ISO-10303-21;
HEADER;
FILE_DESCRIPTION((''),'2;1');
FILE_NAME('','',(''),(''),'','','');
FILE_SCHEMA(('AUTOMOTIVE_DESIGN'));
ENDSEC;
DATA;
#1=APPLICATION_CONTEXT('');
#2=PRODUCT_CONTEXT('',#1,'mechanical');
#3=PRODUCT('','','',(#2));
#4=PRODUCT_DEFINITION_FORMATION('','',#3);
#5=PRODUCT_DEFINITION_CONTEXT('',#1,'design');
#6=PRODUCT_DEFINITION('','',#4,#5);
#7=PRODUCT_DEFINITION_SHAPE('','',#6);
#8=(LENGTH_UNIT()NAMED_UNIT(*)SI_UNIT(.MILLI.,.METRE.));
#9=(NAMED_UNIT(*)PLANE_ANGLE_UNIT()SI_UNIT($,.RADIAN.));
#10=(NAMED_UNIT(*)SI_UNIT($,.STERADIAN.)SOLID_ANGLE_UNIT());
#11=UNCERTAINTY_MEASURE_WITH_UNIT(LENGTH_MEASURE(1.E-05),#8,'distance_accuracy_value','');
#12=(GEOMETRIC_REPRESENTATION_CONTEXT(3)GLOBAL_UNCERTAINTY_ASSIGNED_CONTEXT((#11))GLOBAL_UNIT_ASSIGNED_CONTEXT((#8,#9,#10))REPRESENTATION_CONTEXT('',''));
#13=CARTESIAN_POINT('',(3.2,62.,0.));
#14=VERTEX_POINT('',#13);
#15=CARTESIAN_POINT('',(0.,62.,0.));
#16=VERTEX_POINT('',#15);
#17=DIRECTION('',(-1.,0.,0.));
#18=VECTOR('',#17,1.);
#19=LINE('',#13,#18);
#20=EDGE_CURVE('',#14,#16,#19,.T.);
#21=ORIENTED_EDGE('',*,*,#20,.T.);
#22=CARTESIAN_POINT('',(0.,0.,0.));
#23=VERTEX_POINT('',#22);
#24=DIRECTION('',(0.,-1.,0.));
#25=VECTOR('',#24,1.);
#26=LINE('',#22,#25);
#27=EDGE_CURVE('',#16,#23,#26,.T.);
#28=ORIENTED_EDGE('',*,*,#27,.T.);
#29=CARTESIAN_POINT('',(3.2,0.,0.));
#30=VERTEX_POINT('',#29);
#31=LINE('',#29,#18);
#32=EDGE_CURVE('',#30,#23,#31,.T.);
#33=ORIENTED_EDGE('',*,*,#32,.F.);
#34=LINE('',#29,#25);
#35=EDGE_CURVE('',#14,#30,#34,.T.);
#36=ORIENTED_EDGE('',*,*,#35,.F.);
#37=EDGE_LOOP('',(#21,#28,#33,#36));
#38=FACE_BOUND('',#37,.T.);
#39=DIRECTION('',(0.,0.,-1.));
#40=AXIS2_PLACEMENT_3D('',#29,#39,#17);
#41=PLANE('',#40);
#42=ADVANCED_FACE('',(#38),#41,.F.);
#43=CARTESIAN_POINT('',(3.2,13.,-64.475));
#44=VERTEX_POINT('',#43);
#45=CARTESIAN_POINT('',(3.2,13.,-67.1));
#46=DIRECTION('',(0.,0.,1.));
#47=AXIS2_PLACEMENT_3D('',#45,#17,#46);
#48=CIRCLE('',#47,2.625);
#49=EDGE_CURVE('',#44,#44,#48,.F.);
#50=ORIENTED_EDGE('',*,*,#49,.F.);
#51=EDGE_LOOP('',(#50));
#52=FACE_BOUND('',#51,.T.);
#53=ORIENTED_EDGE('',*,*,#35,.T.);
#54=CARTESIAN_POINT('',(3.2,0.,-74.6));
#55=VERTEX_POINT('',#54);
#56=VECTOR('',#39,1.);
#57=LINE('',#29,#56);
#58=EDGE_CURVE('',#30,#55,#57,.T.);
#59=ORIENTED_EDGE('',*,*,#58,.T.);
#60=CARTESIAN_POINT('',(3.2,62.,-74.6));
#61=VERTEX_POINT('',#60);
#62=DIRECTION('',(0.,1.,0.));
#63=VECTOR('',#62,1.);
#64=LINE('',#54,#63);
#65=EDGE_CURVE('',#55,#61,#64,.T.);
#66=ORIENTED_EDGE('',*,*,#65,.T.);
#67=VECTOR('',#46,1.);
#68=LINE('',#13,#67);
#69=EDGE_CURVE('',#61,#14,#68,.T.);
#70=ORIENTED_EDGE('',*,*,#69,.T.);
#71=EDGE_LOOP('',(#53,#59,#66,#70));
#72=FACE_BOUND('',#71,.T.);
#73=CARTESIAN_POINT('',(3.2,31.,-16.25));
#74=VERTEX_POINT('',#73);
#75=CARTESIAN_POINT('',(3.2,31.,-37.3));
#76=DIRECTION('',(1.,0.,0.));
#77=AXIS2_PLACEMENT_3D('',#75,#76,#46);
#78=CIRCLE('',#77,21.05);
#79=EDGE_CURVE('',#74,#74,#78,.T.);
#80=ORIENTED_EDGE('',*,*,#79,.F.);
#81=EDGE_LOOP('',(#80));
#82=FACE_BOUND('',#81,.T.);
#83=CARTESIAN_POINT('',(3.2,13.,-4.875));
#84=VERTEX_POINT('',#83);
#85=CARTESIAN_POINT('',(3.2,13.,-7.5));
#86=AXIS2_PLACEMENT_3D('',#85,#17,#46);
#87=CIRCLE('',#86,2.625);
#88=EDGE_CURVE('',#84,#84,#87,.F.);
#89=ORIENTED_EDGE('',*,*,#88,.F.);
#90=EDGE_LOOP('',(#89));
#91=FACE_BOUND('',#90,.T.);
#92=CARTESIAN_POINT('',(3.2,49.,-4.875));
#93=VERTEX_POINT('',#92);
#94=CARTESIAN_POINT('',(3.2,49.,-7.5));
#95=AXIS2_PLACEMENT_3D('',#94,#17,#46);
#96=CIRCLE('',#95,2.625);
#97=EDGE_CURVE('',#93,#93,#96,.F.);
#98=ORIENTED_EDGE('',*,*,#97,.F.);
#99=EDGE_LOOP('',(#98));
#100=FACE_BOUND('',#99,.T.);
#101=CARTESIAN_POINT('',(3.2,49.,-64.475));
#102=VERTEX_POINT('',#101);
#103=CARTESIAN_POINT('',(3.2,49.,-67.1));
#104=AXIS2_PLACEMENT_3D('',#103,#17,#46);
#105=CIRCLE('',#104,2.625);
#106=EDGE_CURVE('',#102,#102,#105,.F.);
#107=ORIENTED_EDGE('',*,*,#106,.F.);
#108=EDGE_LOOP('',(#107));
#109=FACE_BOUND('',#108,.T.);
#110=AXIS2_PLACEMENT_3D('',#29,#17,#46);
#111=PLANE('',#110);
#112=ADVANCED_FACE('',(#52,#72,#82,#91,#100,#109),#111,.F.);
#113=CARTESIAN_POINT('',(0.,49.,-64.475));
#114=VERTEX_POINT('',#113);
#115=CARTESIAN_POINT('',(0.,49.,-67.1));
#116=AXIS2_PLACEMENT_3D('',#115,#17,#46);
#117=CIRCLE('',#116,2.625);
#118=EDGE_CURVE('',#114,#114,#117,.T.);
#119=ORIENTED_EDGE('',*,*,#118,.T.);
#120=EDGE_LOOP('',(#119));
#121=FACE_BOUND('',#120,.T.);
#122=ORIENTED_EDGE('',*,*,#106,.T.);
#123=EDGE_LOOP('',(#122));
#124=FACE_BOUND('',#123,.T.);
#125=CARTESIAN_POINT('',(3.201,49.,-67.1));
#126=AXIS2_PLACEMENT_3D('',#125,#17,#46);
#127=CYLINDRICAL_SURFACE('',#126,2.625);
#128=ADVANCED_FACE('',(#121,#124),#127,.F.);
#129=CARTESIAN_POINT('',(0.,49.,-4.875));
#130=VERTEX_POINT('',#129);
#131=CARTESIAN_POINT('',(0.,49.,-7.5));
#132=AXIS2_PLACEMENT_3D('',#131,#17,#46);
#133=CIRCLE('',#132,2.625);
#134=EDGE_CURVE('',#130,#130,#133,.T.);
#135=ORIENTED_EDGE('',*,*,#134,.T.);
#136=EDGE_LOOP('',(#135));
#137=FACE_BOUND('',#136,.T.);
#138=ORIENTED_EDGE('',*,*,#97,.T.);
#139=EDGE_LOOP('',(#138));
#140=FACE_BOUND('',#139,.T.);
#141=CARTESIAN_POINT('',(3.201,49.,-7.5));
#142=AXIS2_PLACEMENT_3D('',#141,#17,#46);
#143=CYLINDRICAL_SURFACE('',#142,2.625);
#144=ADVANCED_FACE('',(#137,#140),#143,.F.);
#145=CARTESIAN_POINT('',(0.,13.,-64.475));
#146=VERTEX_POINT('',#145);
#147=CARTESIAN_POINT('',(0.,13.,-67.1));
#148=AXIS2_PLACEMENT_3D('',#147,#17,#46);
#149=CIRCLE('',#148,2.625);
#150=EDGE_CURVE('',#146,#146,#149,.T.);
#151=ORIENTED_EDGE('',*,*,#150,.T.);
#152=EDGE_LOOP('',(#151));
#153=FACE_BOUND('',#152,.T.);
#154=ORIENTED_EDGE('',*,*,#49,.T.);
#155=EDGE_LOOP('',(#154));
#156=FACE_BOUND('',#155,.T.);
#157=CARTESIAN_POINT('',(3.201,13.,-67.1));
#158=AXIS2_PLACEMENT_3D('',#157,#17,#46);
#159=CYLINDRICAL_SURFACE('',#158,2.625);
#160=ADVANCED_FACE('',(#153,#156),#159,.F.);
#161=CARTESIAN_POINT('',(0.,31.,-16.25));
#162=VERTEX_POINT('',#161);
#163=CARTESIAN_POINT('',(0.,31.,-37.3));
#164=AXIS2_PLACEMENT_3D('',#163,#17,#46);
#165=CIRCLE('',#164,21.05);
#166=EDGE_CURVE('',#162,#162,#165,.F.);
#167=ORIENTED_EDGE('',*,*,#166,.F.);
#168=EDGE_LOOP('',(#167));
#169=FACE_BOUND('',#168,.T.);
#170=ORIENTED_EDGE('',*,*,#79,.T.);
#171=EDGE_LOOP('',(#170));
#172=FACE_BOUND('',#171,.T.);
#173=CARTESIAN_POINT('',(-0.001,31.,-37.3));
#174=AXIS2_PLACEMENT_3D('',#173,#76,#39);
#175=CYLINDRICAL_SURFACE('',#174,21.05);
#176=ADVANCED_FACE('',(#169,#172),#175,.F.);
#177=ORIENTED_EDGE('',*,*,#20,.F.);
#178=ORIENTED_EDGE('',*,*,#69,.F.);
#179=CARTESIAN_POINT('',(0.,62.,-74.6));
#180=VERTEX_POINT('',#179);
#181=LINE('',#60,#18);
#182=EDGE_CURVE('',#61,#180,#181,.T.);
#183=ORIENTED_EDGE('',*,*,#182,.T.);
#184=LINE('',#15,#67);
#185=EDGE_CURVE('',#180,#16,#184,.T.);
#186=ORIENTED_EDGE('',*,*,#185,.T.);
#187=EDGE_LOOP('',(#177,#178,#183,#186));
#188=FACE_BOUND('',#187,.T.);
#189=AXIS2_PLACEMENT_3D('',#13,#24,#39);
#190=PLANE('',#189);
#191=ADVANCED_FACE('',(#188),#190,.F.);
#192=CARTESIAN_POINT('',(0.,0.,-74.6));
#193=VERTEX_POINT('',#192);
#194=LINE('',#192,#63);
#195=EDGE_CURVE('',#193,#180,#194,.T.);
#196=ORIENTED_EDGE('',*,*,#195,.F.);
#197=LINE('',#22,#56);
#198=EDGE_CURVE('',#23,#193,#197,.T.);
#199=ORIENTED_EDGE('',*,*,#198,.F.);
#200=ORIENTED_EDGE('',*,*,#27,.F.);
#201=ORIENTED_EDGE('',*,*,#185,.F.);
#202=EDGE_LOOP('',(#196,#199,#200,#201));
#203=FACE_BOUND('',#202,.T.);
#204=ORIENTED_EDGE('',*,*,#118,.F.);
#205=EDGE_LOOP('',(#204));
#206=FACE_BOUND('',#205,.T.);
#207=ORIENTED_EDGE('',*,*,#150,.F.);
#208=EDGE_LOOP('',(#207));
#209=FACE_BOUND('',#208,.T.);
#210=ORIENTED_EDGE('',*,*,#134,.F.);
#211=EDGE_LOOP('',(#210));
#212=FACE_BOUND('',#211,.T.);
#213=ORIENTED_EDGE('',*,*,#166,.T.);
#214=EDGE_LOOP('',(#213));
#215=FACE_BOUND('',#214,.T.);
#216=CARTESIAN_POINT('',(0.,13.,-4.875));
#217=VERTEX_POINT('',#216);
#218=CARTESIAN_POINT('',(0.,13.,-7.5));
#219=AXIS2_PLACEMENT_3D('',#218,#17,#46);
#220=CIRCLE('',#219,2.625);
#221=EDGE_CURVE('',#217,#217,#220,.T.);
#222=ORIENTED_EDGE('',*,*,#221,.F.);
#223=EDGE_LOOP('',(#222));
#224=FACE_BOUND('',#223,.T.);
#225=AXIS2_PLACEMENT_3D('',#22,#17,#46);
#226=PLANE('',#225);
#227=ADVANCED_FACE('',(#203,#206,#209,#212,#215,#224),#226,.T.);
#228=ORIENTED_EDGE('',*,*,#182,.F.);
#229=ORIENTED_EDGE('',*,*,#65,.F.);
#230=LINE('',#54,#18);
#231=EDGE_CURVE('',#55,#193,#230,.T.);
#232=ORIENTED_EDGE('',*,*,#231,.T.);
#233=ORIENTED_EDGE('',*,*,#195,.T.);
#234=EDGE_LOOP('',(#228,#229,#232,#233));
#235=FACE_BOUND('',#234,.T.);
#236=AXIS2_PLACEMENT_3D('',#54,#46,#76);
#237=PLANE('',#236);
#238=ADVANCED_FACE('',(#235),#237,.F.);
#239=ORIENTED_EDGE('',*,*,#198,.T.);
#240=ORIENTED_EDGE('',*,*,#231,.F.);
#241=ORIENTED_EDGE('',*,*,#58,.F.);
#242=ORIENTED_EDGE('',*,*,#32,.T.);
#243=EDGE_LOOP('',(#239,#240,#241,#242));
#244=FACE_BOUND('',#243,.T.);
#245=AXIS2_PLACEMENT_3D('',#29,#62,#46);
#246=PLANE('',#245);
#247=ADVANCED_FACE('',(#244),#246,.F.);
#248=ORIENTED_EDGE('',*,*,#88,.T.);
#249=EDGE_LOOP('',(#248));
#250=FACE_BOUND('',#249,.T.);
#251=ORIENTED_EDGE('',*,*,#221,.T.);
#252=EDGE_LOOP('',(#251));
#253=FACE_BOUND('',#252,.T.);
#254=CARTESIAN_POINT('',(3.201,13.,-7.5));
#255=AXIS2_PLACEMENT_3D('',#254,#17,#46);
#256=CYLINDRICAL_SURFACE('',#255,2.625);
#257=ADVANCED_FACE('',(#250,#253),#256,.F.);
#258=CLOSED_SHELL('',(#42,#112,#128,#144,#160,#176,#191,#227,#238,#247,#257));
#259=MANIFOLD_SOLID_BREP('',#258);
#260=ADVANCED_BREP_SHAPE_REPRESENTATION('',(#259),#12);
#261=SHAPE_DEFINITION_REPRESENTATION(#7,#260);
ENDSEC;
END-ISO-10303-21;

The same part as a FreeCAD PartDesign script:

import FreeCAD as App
import Part
import Sketcher
from FreeCAD import Vector
Q = App.Units.Quantity


def add_polygon(sketch, points):
    """Adds a closed chain of lines whose ends are joined by coincident constraints."""
    first, n = sketch.GeometryCount, len(points)
    for a, b in zip(points, points[1:] + points[:1]):
        sketch.addGeometry(Part.LineSegment(App.Vector(*a, 0), App.Vector(*b, 0)), False)
    for i in range(n):
        sketch.addConstraint(Sketcher.Constraint("Coincident", first + i, 2, first + (i + 1) % n, 1))

doc = App.newDocument("Part")
body = doc.addObject("PartDesign::Body", "Body")

# Sketch on YZ plane
sketch1 = body.newObject("Sketcher::SketchObject", "Sketch")
sketch1.AttachmentSupport = (doc.getObject("YZ_Plane"), [""])
sketch1.MapMode = "FlatFace"
add_polygon(sketch1, [(62, 0), (0, 0), (0, -75), (62, -75)])  # lines 0-3
sketch1.addConstraint([
    Sketcher.Constraint("Horizontal", 0),
    Sketcher.Constraint("Vertical", 1),
    Sketcher.Constraint("Horizontal", 2),
    Sketcher.Constraint("Vertical", 3),
    Sketcher.Constraint("Coincident", 0, 2, -1, 1),
    Sketcher.Constraint("DistanceX", 0, 2, 0, 1, Q("62 mm")),
    Sketcher.Constraint("DistanceY", 1, 2, 1, 1, Q("74.6 mm")),
])
pad1 = body.newObject("PartDesign::Pad", "Pad")
pad1.Profile = sketch1
pad1.Length = 3.2

# Sketch on YZ plane
sketch2 = body.newObject("Sketcher::SketchObject", "Sketch001")
sketch2.AttachmentSupport = (doc.getObject("YZ_Plane"), [""])
sketch2.MapMode = "FlatFace"
sketch2.AttachmentOffset = App.Placement(Vector(0, 0, 3.2), App.Rotation())
sketch2.addGeometry(Part.Circle(Vector(31, -37, 0), Vector(0, 0, 1), 21), False)
sketch2.addConstraint([
    Sketcher.Constraint("Diameter", 0, Q("42.1 mm")),
    Sketcher.Constraint("DistanceX", -1, 1, 0, 3, Q("31 mm")),
    Sketcher.Constraint("DistanceY", 0, 3, -1, 1, Q("37.3 mm")),
])
pocket1 = body.newObject("PartDesign::Pocket", "Pocket")
pocket1.Profile = sketch2
pocket1.Type = "UpToFirst"

# Sketch on YZ plane
sketch3 = body.newObject("Sketcher::SketchObject", "Sketch002")
sketch3.AttachmentSupport = (doc.getObject("YZ_Plane"), [""])
sketch3.MapMode = "FlatFace"
sketch3.addGeometry(Part.Circle(Vector(13, -67.1, 0), Vector(0, 0, 1), 2.6), False)
sketch3.addConstraint([
    Sketcher.Constraint("Diameter", 0, Q("5.25 mm")),
    Sketcher.Constraint("DistanceX", -1, 1, 0, 3, Q("13 mm")),
    Sketcher.Constraint("DistanceY", 0, 3, -1, 1, Q("67.1 mm")),
])
pocket2 = body.newObject("PartDesign::Pocket", "Pocket001")
pocket2.Profile = sketch3
pocket2.Type = "UpToFirst"
pocket2.Reversed = True

# Sketch on YZ plane
sketch4 = body.newObject("Sketcher::SketchObject", "Sketch003")
sketch4.AttachmentSupport = (doc.getObject("YZ_Plane"), [""])
sketch4.MapMode = "FlatFace"
sketch4.addGeometry(Part.Circle(Vector(49, -67.1, 0), Vector(0, 0, 1), 2.6), False)
sketch4.addConstraint([
    Sketcher.Constraint("Diameter", 0, Q("5.25 mm")),
    Sketcher.Constraint("DistanceX", -1, 1, 0, 3, Q("49 mm")),
    Sketcher.Constraint("DistanceY", 0, 3, -1, 1, Q("67.1 mm")),
])
pocket3 = body.newObject("PartDesign::Pocket", "Pocket002")
pocket3.Profile = sketch4
pocket3.Type = "UpToFirst"
pocket3.Reversed = True

# Sketch on YZ plane
sketch5 = body.newObject("Sketcher::SketchObject", "Sketch004")
sketch5.AttachmentSupport = (doc.getObject("YZ_Plane"), [""])
sketch5.MapMode = "FlatFace"
sketch5.addGeometry(Part.Circle(Vector(13, -7.5, 0), Vector(0, 0, 1), 2.6), False)
sketch5.addConstraint([
    Sketcher.Constraint("Diameter", 0, Q("5.25 mm")),
    Sketcher.Constraint("DistanceX", -1, 1, 0, 3, Q("13 mm")),
    Sketcher.Constraint("DistanceY", 0, 3, -1, 1, Q("7.5 mm")),
])
pocket4 = body.newObject("PartDesign::Pocket", "Pocket003")
pocket4.Profile = sketch5
pocket4.Type = "UpToFirst"
pocket4.Reversed = True

# Sketch on YZ plane
sketch6 = body.newObject("Sketcher::SketchObject", "Sketch005")
sketch6.AttachmentSupport = (doc.getObject("YZ_Plane"), [""])
sketch6.MapMode = "FlatFace"
sketch6.addGeometry(Part.Circle(Vector(49, -7.5, 0), Vector(0, 0, 1), 2.6), False)
sketch6.addConstraint([
    Sketcher.Constraint("Diameter", 0, Q("5.25 mm")),
    Sketcher.Constraint("DistanceX", -1, 1, 0, 3, Q("49 mm")),
    Sketcher.Constraint("DistanceY", 0, 3, -1, 1, Q("7.5 mm")),
])
pocket5 = body.newObject("PartDesign::Pocket", "Pocket004")
pocket5.Profile = sketch6
pocket5.Type = "UpToFirst"
pocket5.Reversed = True

doc.recompute()
